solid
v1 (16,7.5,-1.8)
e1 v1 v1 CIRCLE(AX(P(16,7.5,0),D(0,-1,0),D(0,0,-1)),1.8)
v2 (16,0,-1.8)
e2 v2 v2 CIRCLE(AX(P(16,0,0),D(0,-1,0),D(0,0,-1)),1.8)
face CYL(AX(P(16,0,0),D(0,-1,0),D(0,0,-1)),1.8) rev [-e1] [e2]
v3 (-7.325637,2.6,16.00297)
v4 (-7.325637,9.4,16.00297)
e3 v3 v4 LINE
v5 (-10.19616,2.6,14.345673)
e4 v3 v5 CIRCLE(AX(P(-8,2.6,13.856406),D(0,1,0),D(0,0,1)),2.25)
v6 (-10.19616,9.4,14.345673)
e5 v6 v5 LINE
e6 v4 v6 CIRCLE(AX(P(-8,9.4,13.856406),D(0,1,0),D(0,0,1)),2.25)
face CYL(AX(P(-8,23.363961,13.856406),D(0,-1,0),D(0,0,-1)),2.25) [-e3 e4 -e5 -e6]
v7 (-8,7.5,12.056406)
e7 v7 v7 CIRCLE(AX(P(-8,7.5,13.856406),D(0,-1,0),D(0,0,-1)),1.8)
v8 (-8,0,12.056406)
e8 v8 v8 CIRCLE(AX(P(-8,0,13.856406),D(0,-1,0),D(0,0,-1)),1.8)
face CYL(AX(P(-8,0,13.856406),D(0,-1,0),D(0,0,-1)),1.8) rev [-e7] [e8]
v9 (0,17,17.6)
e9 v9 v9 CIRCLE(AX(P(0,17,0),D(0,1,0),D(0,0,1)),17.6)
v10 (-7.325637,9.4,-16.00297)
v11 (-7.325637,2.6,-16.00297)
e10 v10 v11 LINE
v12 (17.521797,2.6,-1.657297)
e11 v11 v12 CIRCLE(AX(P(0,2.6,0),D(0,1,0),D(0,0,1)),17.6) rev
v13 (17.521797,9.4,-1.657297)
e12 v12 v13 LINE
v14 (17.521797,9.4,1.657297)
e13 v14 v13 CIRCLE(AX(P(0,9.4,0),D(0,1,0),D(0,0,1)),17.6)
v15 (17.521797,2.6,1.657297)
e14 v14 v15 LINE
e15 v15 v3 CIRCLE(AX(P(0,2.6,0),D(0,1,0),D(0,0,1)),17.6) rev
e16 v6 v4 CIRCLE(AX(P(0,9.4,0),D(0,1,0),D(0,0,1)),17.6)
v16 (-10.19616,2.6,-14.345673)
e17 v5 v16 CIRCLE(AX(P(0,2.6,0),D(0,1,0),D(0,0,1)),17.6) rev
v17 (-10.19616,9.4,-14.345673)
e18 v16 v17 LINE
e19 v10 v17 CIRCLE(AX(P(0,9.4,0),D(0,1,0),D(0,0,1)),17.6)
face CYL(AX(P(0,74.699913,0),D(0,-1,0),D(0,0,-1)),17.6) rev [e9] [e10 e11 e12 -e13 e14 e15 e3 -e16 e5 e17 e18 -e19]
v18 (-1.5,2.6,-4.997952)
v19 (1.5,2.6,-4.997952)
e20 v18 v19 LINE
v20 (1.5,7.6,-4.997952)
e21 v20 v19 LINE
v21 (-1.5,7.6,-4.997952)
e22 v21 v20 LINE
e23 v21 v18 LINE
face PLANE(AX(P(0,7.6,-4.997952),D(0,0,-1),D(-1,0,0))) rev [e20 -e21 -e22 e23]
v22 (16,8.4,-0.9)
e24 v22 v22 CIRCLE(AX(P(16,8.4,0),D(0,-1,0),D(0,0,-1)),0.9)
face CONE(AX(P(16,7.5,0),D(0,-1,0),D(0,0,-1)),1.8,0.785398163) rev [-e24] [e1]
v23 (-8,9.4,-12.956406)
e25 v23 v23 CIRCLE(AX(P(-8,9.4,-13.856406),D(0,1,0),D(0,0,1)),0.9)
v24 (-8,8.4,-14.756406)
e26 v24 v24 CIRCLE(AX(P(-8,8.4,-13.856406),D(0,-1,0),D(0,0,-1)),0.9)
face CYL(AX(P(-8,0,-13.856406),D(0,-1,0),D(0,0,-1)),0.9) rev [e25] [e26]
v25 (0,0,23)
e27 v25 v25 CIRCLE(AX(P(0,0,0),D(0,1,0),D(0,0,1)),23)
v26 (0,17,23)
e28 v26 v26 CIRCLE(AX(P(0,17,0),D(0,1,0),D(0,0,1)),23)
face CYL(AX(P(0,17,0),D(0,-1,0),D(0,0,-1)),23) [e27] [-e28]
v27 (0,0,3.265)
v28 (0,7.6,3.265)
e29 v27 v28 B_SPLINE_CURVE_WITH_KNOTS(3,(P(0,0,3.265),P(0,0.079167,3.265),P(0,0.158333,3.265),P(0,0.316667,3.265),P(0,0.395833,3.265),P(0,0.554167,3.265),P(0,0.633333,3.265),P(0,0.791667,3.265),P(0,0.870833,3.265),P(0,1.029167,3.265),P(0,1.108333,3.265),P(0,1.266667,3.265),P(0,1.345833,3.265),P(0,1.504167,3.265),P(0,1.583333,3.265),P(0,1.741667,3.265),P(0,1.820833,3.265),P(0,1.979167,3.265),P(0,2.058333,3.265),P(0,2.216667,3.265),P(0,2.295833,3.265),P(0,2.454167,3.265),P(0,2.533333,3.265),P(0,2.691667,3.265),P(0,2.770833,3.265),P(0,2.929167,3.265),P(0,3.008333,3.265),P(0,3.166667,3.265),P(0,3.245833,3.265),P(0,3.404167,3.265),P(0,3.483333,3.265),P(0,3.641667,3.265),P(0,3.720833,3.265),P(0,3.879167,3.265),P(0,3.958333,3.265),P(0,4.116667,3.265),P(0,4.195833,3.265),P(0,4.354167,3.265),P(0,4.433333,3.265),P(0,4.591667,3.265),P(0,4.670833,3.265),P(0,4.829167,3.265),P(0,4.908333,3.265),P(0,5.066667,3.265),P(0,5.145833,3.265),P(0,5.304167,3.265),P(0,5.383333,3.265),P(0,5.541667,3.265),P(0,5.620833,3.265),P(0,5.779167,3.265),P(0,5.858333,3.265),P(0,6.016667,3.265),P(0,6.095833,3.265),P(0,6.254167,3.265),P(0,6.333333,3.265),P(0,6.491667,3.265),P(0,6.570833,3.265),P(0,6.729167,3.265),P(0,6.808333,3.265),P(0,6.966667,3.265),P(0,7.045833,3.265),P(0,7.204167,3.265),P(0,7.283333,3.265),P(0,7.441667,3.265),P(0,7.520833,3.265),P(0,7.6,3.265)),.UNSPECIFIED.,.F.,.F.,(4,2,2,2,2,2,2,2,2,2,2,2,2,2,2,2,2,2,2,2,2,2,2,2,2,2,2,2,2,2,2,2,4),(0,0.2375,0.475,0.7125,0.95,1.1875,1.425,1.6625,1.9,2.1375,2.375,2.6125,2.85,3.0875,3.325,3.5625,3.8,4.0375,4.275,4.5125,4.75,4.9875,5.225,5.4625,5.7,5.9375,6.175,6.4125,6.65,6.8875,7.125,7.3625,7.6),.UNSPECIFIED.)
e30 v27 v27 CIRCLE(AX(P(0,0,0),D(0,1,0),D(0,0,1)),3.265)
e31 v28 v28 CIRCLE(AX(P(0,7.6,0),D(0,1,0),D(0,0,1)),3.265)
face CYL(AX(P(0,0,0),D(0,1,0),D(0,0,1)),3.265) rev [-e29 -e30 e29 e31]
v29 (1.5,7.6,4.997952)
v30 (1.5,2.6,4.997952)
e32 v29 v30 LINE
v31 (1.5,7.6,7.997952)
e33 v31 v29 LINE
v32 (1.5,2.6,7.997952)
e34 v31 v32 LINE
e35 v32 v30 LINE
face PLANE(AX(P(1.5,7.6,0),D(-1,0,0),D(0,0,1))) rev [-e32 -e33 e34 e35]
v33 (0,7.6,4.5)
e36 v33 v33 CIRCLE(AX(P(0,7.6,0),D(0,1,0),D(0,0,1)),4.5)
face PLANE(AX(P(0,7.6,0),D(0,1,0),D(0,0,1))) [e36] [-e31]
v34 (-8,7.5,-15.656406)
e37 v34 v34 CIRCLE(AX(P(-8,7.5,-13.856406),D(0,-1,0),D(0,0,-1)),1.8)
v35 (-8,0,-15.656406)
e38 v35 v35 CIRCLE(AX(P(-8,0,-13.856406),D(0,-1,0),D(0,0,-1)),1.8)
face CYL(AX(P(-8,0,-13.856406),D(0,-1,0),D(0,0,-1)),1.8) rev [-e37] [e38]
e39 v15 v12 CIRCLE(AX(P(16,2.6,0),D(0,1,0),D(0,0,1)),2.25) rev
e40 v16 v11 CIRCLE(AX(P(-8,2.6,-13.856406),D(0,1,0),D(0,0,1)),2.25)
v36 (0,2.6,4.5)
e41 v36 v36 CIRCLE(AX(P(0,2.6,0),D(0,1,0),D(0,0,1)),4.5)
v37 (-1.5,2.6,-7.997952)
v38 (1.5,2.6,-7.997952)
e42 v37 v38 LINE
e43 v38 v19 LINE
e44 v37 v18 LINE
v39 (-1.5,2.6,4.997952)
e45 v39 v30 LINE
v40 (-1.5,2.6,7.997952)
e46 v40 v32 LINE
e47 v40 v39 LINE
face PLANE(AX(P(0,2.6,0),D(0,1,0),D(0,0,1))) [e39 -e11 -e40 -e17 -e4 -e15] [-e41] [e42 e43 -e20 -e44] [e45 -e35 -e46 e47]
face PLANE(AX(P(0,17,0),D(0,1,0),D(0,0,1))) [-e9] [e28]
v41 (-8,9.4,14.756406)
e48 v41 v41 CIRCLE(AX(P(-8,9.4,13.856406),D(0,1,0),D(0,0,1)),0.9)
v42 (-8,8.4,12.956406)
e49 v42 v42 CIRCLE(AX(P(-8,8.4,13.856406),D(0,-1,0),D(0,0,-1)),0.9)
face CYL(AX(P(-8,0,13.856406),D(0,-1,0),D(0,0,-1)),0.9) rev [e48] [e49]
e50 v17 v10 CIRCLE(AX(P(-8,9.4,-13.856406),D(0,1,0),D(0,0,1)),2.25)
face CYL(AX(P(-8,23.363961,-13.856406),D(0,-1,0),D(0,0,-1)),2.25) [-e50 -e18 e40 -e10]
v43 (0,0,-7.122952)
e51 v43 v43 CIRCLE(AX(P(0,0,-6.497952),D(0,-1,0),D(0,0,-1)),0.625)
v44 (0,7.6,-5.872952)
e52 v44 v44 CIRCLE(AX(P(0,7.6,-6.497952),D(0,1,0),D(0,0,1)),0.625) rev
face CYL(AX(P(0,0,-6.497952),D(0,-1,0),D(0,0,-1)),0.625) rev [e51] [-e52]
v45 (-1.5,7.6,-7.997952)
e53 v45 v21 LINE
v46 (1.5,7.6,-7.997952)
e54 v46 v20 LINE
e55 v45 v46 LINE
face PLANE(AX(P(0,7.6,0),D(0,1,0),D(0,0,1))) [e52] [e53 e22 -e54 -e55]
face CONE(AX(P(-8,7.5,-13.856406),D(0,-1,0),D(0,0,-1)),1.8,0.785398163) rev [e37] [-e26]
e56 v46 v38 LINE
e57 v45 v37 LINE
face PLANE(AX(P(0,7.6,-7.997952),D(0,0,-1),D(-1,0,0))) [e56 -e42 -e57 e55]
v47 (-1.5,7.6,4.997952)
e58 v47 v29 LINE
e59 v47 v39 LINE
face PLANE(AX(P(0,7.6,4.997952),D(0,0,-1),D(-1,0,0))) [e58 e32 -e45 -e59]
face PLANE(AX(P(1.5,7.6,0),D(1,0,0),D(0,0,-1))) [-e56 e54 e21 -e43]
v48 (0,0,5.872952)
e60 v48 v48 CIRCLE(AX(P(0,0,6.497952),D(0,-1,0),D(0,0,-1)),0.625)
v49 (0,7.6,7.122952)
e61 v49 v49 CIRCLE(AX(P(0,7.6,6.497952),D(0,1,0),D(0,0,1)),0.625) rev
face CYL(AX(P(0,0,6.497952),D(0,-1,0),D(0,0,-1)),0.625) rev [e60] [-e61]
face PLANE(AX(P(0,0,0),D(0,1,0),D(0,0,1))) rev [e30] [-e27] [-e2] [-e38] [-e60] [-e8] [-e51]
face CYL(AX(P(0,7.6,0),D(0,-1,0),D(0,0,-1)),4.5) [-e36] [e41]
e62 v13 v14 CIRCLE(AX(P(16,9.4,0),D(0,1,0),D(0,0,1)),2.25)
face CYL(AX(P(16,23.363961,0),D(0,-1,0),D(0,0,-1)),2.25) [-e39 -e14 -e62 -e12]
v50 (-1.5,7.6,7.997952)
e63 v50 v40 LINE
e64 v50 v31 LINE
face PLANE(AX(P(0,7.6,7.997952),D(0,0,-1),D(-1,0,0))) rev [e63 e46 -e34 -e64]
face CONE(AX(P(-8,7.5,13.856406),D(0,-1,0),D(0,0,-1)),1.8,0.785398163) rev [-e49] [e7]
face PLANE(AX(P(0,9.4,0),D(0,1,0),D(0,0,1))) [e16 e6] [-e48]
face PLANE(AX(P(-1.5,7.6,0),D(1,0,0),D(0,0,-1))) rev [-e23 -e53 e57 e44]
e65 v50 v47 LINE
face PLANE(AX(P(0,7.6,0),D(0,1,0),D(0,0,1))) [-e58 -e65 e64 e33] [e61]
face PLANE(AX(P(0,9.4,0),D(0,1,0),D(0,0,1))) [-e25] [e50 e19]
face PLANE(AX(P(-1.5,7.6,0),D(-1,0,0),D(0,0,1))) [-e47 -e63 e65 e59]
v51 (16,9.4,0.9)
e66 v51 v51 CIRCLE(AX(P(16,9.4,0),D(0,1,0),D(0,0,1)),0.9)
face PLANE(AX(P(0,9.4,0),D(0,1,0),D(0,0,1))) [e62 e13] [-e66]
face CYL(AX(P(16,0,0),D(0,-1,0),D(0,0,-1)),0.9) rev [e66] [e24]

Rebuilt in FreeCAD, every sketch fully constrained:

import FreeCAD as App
import Part
import Sketcher

V = App.Vector
Q = App.Units.Quantity


def faces_at(feature, points):
    """Names of the faces that lie closest to the given points."""
    faces = feature.Shape.Faces
    near = lambda p: min(range(len(faces)), key=lambda i: faces[i].distToShape(Part.Vertex(*p))[0])
    return sorted({f"Face{near(p) + 1}" for p in points})

doc = App.newDocument("Part")
body = doc.addObject("PartDesign::Body", "Body")

sketch1 = body.newObject("Sketcher::SketchObject", "Sketch")
sketch1.AttachmentSupport = (doc.getObject("XZ_Plane"), [""])
sketch1.MapMode = "FlatFace"
sketch1.addGeometry(Part.Circle(V(0, 0, 0), V(0, 0, 1), 23), False)
sketch1.addConstraint([
    Sketcher.Constraint("Coincident", 0, 3, -1, 1),
    Sketcher.Constraint("Diameter", 0, 46.0),
])
pad1 = body.newObject("PartDesign::Pad", "Pad")
pad1.Profile = sketch1
pad1.Length = 17
pad1.Reversed = True
doc.recompute()

thickness = body.newObject("PartDesign::Thickness", "Thickness")
thickness.Base = (pad1, faces_at(pad1, [(0, 17, 0)]))
thickness.Value = 2.6
thickness.Reversed = True
thickness.Join = "Intersection"

sketch2 = body.newObject("Sketcher::SketchObject", "Sketch001")
sketch2.AttachmentSupport = (doc.getObject("XZ_Plane"), [""])
sketch2.MapMode = "FlatFace"
sketch2.AttachmentOffset = App.Placement(V(0, 0, -2.6), App.Rotation())
sketch2.addGeometry(Part.Circle(V(0, 0, 0), V(0, 0, 1), 4.5), False)
sketch2.addConstraint([
    Sketcher.Constraint("Coincident", 0, 3, -1, 1),
    Sketcher.Constraint("Diameter", 0, 9.0),
])
pad2 = body.newObject("PartDesign::Pad", "Pad001")
pad2.Profile = sketch2
pad2.Length = 5
pad2.Reversed = True

sketch3 = body.newObject("Sketcher::SketchObject", "Sketch002")
sketch3.AttachmentSupport = (doc.getObject("XZ_Plane"), [""])
sketch3.MapMode = "FlatFace"
sketch3.AttachmentOffset = App.Placement(V(0, 0, -7.6), App.Rotation())
sketch3.addGeometry(Part.Circle(V(0, 0, 0), V(0, 0, 1), 3.3), False)
sketch3.addConstraint([
    Sketcher.Constraint("Coincident", 0, 3, -1, 1),
    Sketcher.Constraint("Diameter", 0, 6.53),
])
pocket1 = body.newObject("PartDesign::Pocket", "Pocket")
pocket1.Profile = sketch3
pocket1.Type = "ThroughAll"
pocket1.Reversed = True

sketch4 = body.newObject("Sketcher::SketchObject", "Sketch003")
sketch4.AttachmentSupport = (doc.getObject("XZ_Plane"), [""])
sketch4.MapMode = "FlatFace"
sketch4.addGeometry([
    Part.Circle(V(0, -6.5, 0), V(0, 0, 1), 0.6),
    Part.Circle(V(0, 6.5, 0), V(0, 0, 1), 0.6),
], False)
sketch4.addConstraint([
    Sketcher.Constraint("Equal", 0, 1),
    Sketcher.Constraint("Symmetric", 0, 3, 1, 3, -1, 1),
    Sketcher.Constraint("PointOnObject", 0, 3, -2),
    Sketcher.Constraint("Diameter", 0, 1.25),
    Sketcher.Constraint("DistanceY", 0, 3, -1, 1, 6.497952),
])
doc.recompute()
hole = body.newObject("PartDesign::Hole", "Hole")
hole.Profile = sketch4
hole.ThreadType = "None"
hole.Diameter = 1.25
hole.DepthType = "ThroughAll"

sketch5 = body.newObject("Sketcher::SketchObject", "Sketch004")
sketch5.AttachmentSupport = (doc.getObject("XZ_Plane"), [""])
sketch5.MapMode = "FlatFace"
sketch5.AttachmentOffset = App.Placement(V(0, 0, -7.6), App.Rotation())
sketch5.addGeometry([
    Part.LineSegment(V(-1.5, 5, 0), V(-1.5, 8, 0)),
    Part.LineSegment(V(-1.5, 8, 0), V(1.5, 8, 0)),
    Part.LineSegment(V(1.5, 8, 0), V(1.5, 5, 0)),
    Part.LineSegment(V(1.5, 5, 0), V(-1.5, 5, 0)),
    Part.Circle(V(0, 6.5, 0), V(0, 0, 1), 0.6),
    Part.LineSegment(V(-1.5, -8, 0), V(-1.5, -5, 0)),
    Part.LineSegment(V(-1.5, -5, 0), V(1.5, -5, 0)),
    Part.LineSegment(V(1.5, -5, 0), V(1.5, -8, 0)),
    Part.LineSegment(V(1.5, -8, 0), V(-1.5, -8, 0)),
    Part.Circle(V(0, -6.5, 0), V(0, 0, 1), 0.6),
], False)
sketch5.addConstraint([
    Sketcher.Constraint("Coincident", 0, 2, 1, 1),
    Sketcher.Constraint("Coincident", 1, 2, 2, 1),
    Sketcher.Constraint("Coincident", 2, 2, 3, 1),
    Sketcher.Constraint("Coincident", 3, 2, 0, 1),
    Sketcher.Constraint("Coincident", 5, 2, 6, 1),
    Sketcher.Constraint("Coincident", 6, 2, 7, 1),
    Sketcher.Constraint("Coincident", 7, 2, 8, 1),
    Sketcher.Constraint("Coincident", 8, 2, 5, 1),
    Sketcher.Constraint("Vertical", 0),
    Sketcher.Constraint("Horizontal", 1),
    Sketcher.Constraint("Vertical", 2),
    Sketcher.Constraint("Horizontal", 3),
    Sketcher.Constraint("Vertical", 5),
    Sketcher.Constraint("Horizontal", 6),
    Sketcher.Constraint("Vertical", 7),
    Sketcher.Constraint("Horizontal", 8),
    Sketcher.Constraint("Equal", 4, 9),
    Sketcher.Constraint("Symmetric", 4, 3, 9, 3, -1, 1),
    Sketcher.Constraint("Symmetric", 2, 2, 5, 2, -1, 1),
    Sketcher.Constraint("Symmetric", 0, 2, 7, 2, -1, 1),
    Sketcher.Constraint("PointOnObject", 4, 3, -2),
    Sketcher.Constraint("Vertical", 3, 2, 5, 2),
    Sketcher.Constraint("Equal", 8, 0),
    Sketcher.Constraint("Diameter", 4, 1.25),
    Sketcher.Constraint("DistanceX", 1, 1, 1, 2, 3.0),
    Sketcher.Constraint("DistanceY", 4, 3, 0, 2, 1.5),
    Sketcher.Constraint("DistanceY", -1, 1, 4, 3, 6.497952),
])
pad3 = body.newObject("PartDesign::Pad", "Pad002")
pad3.Profile = sketch5
pad3.Length = 5

sketch6 = body.newObject("Sketcher::SketchObject", "Sketch005")
sketch6.AttachmentSupport = (doc.getObject("XZ_Plane"), [""])
sketch6.MapMode = "FlatFace"
sketch6.AttachmentOffset = App.Placement(V(0, 0, -2.6), App.Rotation())
sketch6.addGeometry([
    Part.Circle(V(0, 0, 0), V(0, 0, 1), 20),
    Part.Circle(V(0, 0, 0), V(0, 0, 1), 18),
], False)
sketch6.addConstraint([
    Sketcher.Constraint("Coincident", 0, 3, -1, 1),
    Sketcher.Constraint("Coincident", 1, 3, -1, 1),
    Sketcher.Constraint("Diameter", 0, 40.8),
    Sketcher.Constraint("Diameter", 1, 35.2),
])
pad4 = body.newObject("PartDesign::Pad", "Pad003")
pad4.Profile = sketch6
pad4.Length = 14.4
pad4.Reversed = True

sketch7 = body.newObject("Sketcher::SketchObject", "Sketch006")
sketch7.AttachmentSupport = (doc.getObject("XZ_Plane"), [""])
sketch7.MapMode = "FlatFace"
sketch7.AttachmentOffset = App.Placement(V(0, 0, -2.6), App.Rotation())
sketch7.addGeometry([
    Part.Circle(V(-8, -13.9, 0), V(0, 0, 1), 2.2),
    Part.Circle(V(16, 0, 0), V(0, 0, 1), 2.2),
    Part.Circle(V(-8, 13.9, 0), V(0, 0, 1), 2.2),
], False)
sketch7.addConstraint([
    Sketcher.Constraint("Equal", 0, 1),
    Sketcher.Constraint("Equal", 1, 2),
    Sketcher.Constraint("Symmetric", 0, 3, 2, 3, -1),
    Sketcher.Constraint("PointOnObject", 1, 3, -1),
    Sketcher.Constraint("Diameter", 0, 4.5),
    Sketcher.Constraint("DistanceX", 0, 3, -1, 1, 8.0),
    Sketcher.Constraint("DistanceX", -1, 1, 1, 3, 16.0),
    Sketcher.Constraint("DistanceY", 0, 3, -1, 1, 13.856406),
])
pad5 = body.newObject("PartDesign::Pad", "Pad004")
pad5.Profile = sketch7
pad5.Length = 6.8
pad5.Reversed = True

sketch8 = body.newObject("Sketcher::SketchObject", "Sketch007")
sketch8.AttachmentSupport = (doc.getObject("YZ_Plane"), [""])
sketch8.MapMode = "FlatFace"
sketch8.AttachmentOffset = App.Placement(V(0, 0, -8), App.Rotation())
sketch8.addGeometry([
    Part.LineSegment(V(17, 13.9, 0), V(0, 13.9, 0)),
    Part.LineSegment(V(0, 13.9, 0), V(0, 12.1, 0)),
    Part.LineSegment(V(0, 12.1, 0), V(7.5, 12.1, 0)),
    Part.LineSegment(V(7.5, 12.1, 0), V(8.4, 13, 0)),
    Part.LineSegment(V(8.4, 13, 0), V(17, 13, 0)),
    Part.LineSegment(V(17, 13, 0), V(17, 13.9, 0)),
], False)
sketch8.addGeometry(Part.LineSegment(V(0, 13.9, 0), V(17, 13.9, 0)), True)
sketch8.addConstraint([
    Sketcher.Constraint("Coincident", 0, 2, 1, 1),
    Sketcher.Constraint("Coincident", 1, 2, 2, 1),
    Sketcher.Constraint("Coincident", 2, 2, 3, 1),
    Sketcher.Constraint("Coincident", 3, 2, 4, 1),
    Sketcher.Constraint("Coincident", 4, 2, 5, 1),
    Sketcher.Constraint("Coincident", 5, 2, 0, 1),
    Sketcher.Constraint("Horizontal", 0),
    Sketcher.Constraint("Vertical", 1),
    Sketcher.Constraint("Horizontal", 2),
    Sketcher.Constraint("Horizontal", 4),
    Sketcher.Constraint("Vertical", 5),
    Sketcher.Constraint("Horizontal", 6),
    Sketcher.Constraint("Coincident", 6, 1, 0, 2),
    Sketcher.Constraint("PointOnObject", 0, 2, -2),
    Sketcher.Constraint("Vertical", 4, 2, 6, 2),
    Sketcher.Constraint("DistanceX", 0, 2, 0, 1, 17.0),
    Sketcher.Constraint("Angle", 3, Q("45 deg")),
    Sketcher.Constraint("DistanceX", 2, 1, 2, 2, 7.5),
    Sketcher.Constraint("DistanceX", 4, 1, 4, 2, 8.6),
    Sketcher.Constraint("DistanceY", 1, 2, 1, 1, 1.8),
    Sketcher.Constraint("DistanceY", -1, 1, 0, 2, 13.856406),
])
groove = body.newObject("PartDesign::Groove", "Groove")
groove.Profile = sketch8
groove.ReferenceAxis = (sketch8, ["Axis0"])
groove.Angle = 360
doc.recompute()

linearpattern = body.newObject("PartDesign::LinearPattern", "LinearPattern")
linearpattern.Originals = [groove]
linearpattern.Direction = (doc.getObject("Z_Axis"), [""])
linearpattern.Mode = "offset"
linearpattern.Offset = 27.712813
linearpattern.Occurrences = 2
linearpattern.Reversed = True
body.Tip = linearpattern
doc.recompute()

datumline = body.newObject("PartDesign::Line", "DatumLine")
datumline.Placement = App.Placement(V(0, 0, 0), App.Rotation(V(0, 0, 1), V(0.866025404, 0, -0.5)))
linearpattern2 = body.newObject("PartDesign::LinearPattern", "LinearPattern001")
linearpattern2.Originals = [groove]
linearpattern2.Direction = (datumline, [""])
linearpattern2.Mode = "offset"
linearpattern2.Offset = 27.712813
linearpattern2.Occurrences = 2
body.Tip = linearpattern2

doc.recompute()
